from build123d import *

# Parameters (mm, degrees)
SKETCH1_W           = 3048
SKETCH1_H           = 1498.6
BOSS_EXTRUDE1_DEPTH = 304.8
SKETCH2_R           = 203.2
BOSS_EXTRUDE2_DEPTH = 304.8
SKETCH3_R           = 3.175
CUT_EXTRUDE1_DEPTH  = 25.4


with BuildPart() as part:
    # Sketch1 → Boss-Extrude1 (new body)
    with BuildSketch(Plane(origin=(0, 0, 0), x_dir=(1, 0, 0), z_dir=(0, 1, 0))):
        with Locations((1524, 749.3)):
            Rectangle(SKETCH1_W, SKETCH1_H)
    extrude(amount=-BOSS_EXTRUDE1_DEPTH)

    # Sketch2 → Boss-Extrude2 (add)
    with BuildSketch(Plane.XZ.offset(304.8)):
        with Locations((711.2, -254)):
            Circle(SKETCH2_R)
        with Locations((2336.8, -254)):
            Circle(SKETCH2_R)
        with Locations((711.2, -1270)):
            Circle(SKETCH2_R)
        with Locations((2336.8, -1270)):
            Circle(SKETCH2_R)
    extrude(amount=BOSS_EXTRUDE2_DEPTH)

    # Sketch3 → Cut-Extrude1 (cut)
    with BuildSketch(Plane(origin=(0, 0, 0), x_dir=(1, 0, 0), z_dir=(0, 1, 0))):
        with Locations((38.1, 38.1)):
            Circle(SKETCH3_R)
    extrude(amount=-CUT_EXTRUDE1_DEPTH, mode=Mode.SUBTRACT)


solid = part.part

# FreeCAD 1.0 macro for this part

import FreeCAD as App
import Part
import Sketcher

V = App.Vector
Q = App.Units.Quantity

doc = App.newDocument("Part")
body = doc.addObject("PartDesign::Body", "Body")

# Sketch on XZ plane
sketch1 = doc.addObject("Sketcher::SketchObject", "Sketch")
body.addObject(sketch1)
sketch1.AttachmentSupport = (doc.XZ_Plane, [""])
sketch1.MapMode = "FlatFace"
sketch1.addGeometry([
    Part.LineSegment(V(0, -1499, 0), V(0, 0, 0)),
    Part.LineSegment(V(0, 0, 0), V(3048, 0, 0)),
    Part.LineSegment(V(3048, 0, 0), V(3048, -1499, 0)),
    Part.LineSegment(V(3048, -1499, 0), V(0, -1499, 0)),
], False)
sketch1.addConstraint([
    Sketcher.Constraint("Coincident", 0, 2, 1, 1),
    Sketcher.Constraint("Coincident", 1, 2, 2, 1),
    Sketcher.Constraint("Coincident", 2, 2, 3, 1),
    Sketcher.Constraint("Coincident", 3, 2, 0, 1),
    Sketcher.Constraint("Vertical", 0),
    Sketcher.Constraint("Horizontal", 1),
    Sketcher.Constraint("Vertical", 2),
    Sketcher.Constraint("Horizontal", 3),
    Sketcher.Constraint("Coincident", 0, 2, -1, 1),
    Sketcher.Constraint("DistanceX", 1, 1, 1, 2, Q("120 in")),
    Sketcher.Constraint("DistanceY", 0, 1, 0, 2, Q("59 in")),
])
pad1 = doc.addObject("PartDesign::Pad", "Pad")
body.addObject(pad1)
pad1.Profile = sketch1
pad1.Length = Q("12 in")

# Sketch on XZ plane
sketch2 = doc.addObject("Sketcher::SketchObject", "Sketch001")
body.addObject(sketch2)
sketch2.AttachmentSupport = (doc.XZ_Plane, [""])
sketch2.MapMode = "FlatFace"
sketch2.AttachmentOffset = App.Placement(V(0, 0, 12 * 25.4), App.Rotation())
sketch2.addGeometry([
    Part.Circle(V(711, -254, 0), V(0, 0, 1), 203),
    Part.Circle(V(2337, -254, 0), V(0, 0, 1), 203),
    Part.Circle(V(711, -1270, 0), V(0, 0, 1), 203),
    Part.Circle(V(2337, -1270, 0), V(0, 0, 1), 203),
], False)
sketch2.addConstraint([
    Sketcher.Constraint("Equal", 0, 1),
    Sketcher.Constraint("Equal", 1, 2),
    Sketcher.Constraint("Equal", 2, 3),
    Sketcher.Constraint("Horizontal", 0, 3, 1, 3),
    Sketcher.Constraint("Horizontal", 2, 3, 3, 3),
    Sketcher.Constraint("Vertical", 0, 3, 2, 3),
    Sketcher.Constraint("Vertical", 1, 3, 3, 3),
    Sketcher.Constraint("Diameter", 0, Q("16 in")),
    Sketcher.Constraint("DistanceX", -1, 1, 0, 3, Q("28 in")),
    Sketcher.Constraint("DistanceY", 0, 3, -1, 1, Q("10 in")),
    Sketcher.Constraint("DistanceX", -1, 1, 1, 3, Q("92 in")),
    Sketcher.Constraint("DistanceY", 2, 3, -1, 1, Q("50 in")),
])
pad2 = doc.addObject("PartDesign::Pad", "Pad001")
body.addObject(pad2)
pad2.Profile = sketch2
pad2.Length = Q("12 in")

# Sketch on XZ plane
sketch3 = doc.addObject("Sketcher::SketchObject", "Sketch002")
body.addObject(sketch3)
sketch3.AttachmentSupport = (doc.XZ_Plane, [""])
sketch3.MapMode = "FlatFace"
sketch3.addGeometry(Part.Circle(V(38.1, -38.1, 0), V(0, 0, 1), 3.2), False)
sketch3.addConstraint([
    Sketcher.Constraint("Diameter", 0, Q("0.25 in")),
    Sketcher.Constraint("DistanceX", -1, 1, 0, 3, Q("1.5 in")),
    Sketcher.Constraint("DistanceY", 0, 3, -1, 1, Q("1.5 in")),
])
pocket1 = doc.addObject("PartDesign::Pocket", "Pocket")
body.addObject(pocket1)
pocket1.Profile = sketch3
pocket1.Length = Q("1 in")
pocket1.Reversed = True

doc.recompute()
